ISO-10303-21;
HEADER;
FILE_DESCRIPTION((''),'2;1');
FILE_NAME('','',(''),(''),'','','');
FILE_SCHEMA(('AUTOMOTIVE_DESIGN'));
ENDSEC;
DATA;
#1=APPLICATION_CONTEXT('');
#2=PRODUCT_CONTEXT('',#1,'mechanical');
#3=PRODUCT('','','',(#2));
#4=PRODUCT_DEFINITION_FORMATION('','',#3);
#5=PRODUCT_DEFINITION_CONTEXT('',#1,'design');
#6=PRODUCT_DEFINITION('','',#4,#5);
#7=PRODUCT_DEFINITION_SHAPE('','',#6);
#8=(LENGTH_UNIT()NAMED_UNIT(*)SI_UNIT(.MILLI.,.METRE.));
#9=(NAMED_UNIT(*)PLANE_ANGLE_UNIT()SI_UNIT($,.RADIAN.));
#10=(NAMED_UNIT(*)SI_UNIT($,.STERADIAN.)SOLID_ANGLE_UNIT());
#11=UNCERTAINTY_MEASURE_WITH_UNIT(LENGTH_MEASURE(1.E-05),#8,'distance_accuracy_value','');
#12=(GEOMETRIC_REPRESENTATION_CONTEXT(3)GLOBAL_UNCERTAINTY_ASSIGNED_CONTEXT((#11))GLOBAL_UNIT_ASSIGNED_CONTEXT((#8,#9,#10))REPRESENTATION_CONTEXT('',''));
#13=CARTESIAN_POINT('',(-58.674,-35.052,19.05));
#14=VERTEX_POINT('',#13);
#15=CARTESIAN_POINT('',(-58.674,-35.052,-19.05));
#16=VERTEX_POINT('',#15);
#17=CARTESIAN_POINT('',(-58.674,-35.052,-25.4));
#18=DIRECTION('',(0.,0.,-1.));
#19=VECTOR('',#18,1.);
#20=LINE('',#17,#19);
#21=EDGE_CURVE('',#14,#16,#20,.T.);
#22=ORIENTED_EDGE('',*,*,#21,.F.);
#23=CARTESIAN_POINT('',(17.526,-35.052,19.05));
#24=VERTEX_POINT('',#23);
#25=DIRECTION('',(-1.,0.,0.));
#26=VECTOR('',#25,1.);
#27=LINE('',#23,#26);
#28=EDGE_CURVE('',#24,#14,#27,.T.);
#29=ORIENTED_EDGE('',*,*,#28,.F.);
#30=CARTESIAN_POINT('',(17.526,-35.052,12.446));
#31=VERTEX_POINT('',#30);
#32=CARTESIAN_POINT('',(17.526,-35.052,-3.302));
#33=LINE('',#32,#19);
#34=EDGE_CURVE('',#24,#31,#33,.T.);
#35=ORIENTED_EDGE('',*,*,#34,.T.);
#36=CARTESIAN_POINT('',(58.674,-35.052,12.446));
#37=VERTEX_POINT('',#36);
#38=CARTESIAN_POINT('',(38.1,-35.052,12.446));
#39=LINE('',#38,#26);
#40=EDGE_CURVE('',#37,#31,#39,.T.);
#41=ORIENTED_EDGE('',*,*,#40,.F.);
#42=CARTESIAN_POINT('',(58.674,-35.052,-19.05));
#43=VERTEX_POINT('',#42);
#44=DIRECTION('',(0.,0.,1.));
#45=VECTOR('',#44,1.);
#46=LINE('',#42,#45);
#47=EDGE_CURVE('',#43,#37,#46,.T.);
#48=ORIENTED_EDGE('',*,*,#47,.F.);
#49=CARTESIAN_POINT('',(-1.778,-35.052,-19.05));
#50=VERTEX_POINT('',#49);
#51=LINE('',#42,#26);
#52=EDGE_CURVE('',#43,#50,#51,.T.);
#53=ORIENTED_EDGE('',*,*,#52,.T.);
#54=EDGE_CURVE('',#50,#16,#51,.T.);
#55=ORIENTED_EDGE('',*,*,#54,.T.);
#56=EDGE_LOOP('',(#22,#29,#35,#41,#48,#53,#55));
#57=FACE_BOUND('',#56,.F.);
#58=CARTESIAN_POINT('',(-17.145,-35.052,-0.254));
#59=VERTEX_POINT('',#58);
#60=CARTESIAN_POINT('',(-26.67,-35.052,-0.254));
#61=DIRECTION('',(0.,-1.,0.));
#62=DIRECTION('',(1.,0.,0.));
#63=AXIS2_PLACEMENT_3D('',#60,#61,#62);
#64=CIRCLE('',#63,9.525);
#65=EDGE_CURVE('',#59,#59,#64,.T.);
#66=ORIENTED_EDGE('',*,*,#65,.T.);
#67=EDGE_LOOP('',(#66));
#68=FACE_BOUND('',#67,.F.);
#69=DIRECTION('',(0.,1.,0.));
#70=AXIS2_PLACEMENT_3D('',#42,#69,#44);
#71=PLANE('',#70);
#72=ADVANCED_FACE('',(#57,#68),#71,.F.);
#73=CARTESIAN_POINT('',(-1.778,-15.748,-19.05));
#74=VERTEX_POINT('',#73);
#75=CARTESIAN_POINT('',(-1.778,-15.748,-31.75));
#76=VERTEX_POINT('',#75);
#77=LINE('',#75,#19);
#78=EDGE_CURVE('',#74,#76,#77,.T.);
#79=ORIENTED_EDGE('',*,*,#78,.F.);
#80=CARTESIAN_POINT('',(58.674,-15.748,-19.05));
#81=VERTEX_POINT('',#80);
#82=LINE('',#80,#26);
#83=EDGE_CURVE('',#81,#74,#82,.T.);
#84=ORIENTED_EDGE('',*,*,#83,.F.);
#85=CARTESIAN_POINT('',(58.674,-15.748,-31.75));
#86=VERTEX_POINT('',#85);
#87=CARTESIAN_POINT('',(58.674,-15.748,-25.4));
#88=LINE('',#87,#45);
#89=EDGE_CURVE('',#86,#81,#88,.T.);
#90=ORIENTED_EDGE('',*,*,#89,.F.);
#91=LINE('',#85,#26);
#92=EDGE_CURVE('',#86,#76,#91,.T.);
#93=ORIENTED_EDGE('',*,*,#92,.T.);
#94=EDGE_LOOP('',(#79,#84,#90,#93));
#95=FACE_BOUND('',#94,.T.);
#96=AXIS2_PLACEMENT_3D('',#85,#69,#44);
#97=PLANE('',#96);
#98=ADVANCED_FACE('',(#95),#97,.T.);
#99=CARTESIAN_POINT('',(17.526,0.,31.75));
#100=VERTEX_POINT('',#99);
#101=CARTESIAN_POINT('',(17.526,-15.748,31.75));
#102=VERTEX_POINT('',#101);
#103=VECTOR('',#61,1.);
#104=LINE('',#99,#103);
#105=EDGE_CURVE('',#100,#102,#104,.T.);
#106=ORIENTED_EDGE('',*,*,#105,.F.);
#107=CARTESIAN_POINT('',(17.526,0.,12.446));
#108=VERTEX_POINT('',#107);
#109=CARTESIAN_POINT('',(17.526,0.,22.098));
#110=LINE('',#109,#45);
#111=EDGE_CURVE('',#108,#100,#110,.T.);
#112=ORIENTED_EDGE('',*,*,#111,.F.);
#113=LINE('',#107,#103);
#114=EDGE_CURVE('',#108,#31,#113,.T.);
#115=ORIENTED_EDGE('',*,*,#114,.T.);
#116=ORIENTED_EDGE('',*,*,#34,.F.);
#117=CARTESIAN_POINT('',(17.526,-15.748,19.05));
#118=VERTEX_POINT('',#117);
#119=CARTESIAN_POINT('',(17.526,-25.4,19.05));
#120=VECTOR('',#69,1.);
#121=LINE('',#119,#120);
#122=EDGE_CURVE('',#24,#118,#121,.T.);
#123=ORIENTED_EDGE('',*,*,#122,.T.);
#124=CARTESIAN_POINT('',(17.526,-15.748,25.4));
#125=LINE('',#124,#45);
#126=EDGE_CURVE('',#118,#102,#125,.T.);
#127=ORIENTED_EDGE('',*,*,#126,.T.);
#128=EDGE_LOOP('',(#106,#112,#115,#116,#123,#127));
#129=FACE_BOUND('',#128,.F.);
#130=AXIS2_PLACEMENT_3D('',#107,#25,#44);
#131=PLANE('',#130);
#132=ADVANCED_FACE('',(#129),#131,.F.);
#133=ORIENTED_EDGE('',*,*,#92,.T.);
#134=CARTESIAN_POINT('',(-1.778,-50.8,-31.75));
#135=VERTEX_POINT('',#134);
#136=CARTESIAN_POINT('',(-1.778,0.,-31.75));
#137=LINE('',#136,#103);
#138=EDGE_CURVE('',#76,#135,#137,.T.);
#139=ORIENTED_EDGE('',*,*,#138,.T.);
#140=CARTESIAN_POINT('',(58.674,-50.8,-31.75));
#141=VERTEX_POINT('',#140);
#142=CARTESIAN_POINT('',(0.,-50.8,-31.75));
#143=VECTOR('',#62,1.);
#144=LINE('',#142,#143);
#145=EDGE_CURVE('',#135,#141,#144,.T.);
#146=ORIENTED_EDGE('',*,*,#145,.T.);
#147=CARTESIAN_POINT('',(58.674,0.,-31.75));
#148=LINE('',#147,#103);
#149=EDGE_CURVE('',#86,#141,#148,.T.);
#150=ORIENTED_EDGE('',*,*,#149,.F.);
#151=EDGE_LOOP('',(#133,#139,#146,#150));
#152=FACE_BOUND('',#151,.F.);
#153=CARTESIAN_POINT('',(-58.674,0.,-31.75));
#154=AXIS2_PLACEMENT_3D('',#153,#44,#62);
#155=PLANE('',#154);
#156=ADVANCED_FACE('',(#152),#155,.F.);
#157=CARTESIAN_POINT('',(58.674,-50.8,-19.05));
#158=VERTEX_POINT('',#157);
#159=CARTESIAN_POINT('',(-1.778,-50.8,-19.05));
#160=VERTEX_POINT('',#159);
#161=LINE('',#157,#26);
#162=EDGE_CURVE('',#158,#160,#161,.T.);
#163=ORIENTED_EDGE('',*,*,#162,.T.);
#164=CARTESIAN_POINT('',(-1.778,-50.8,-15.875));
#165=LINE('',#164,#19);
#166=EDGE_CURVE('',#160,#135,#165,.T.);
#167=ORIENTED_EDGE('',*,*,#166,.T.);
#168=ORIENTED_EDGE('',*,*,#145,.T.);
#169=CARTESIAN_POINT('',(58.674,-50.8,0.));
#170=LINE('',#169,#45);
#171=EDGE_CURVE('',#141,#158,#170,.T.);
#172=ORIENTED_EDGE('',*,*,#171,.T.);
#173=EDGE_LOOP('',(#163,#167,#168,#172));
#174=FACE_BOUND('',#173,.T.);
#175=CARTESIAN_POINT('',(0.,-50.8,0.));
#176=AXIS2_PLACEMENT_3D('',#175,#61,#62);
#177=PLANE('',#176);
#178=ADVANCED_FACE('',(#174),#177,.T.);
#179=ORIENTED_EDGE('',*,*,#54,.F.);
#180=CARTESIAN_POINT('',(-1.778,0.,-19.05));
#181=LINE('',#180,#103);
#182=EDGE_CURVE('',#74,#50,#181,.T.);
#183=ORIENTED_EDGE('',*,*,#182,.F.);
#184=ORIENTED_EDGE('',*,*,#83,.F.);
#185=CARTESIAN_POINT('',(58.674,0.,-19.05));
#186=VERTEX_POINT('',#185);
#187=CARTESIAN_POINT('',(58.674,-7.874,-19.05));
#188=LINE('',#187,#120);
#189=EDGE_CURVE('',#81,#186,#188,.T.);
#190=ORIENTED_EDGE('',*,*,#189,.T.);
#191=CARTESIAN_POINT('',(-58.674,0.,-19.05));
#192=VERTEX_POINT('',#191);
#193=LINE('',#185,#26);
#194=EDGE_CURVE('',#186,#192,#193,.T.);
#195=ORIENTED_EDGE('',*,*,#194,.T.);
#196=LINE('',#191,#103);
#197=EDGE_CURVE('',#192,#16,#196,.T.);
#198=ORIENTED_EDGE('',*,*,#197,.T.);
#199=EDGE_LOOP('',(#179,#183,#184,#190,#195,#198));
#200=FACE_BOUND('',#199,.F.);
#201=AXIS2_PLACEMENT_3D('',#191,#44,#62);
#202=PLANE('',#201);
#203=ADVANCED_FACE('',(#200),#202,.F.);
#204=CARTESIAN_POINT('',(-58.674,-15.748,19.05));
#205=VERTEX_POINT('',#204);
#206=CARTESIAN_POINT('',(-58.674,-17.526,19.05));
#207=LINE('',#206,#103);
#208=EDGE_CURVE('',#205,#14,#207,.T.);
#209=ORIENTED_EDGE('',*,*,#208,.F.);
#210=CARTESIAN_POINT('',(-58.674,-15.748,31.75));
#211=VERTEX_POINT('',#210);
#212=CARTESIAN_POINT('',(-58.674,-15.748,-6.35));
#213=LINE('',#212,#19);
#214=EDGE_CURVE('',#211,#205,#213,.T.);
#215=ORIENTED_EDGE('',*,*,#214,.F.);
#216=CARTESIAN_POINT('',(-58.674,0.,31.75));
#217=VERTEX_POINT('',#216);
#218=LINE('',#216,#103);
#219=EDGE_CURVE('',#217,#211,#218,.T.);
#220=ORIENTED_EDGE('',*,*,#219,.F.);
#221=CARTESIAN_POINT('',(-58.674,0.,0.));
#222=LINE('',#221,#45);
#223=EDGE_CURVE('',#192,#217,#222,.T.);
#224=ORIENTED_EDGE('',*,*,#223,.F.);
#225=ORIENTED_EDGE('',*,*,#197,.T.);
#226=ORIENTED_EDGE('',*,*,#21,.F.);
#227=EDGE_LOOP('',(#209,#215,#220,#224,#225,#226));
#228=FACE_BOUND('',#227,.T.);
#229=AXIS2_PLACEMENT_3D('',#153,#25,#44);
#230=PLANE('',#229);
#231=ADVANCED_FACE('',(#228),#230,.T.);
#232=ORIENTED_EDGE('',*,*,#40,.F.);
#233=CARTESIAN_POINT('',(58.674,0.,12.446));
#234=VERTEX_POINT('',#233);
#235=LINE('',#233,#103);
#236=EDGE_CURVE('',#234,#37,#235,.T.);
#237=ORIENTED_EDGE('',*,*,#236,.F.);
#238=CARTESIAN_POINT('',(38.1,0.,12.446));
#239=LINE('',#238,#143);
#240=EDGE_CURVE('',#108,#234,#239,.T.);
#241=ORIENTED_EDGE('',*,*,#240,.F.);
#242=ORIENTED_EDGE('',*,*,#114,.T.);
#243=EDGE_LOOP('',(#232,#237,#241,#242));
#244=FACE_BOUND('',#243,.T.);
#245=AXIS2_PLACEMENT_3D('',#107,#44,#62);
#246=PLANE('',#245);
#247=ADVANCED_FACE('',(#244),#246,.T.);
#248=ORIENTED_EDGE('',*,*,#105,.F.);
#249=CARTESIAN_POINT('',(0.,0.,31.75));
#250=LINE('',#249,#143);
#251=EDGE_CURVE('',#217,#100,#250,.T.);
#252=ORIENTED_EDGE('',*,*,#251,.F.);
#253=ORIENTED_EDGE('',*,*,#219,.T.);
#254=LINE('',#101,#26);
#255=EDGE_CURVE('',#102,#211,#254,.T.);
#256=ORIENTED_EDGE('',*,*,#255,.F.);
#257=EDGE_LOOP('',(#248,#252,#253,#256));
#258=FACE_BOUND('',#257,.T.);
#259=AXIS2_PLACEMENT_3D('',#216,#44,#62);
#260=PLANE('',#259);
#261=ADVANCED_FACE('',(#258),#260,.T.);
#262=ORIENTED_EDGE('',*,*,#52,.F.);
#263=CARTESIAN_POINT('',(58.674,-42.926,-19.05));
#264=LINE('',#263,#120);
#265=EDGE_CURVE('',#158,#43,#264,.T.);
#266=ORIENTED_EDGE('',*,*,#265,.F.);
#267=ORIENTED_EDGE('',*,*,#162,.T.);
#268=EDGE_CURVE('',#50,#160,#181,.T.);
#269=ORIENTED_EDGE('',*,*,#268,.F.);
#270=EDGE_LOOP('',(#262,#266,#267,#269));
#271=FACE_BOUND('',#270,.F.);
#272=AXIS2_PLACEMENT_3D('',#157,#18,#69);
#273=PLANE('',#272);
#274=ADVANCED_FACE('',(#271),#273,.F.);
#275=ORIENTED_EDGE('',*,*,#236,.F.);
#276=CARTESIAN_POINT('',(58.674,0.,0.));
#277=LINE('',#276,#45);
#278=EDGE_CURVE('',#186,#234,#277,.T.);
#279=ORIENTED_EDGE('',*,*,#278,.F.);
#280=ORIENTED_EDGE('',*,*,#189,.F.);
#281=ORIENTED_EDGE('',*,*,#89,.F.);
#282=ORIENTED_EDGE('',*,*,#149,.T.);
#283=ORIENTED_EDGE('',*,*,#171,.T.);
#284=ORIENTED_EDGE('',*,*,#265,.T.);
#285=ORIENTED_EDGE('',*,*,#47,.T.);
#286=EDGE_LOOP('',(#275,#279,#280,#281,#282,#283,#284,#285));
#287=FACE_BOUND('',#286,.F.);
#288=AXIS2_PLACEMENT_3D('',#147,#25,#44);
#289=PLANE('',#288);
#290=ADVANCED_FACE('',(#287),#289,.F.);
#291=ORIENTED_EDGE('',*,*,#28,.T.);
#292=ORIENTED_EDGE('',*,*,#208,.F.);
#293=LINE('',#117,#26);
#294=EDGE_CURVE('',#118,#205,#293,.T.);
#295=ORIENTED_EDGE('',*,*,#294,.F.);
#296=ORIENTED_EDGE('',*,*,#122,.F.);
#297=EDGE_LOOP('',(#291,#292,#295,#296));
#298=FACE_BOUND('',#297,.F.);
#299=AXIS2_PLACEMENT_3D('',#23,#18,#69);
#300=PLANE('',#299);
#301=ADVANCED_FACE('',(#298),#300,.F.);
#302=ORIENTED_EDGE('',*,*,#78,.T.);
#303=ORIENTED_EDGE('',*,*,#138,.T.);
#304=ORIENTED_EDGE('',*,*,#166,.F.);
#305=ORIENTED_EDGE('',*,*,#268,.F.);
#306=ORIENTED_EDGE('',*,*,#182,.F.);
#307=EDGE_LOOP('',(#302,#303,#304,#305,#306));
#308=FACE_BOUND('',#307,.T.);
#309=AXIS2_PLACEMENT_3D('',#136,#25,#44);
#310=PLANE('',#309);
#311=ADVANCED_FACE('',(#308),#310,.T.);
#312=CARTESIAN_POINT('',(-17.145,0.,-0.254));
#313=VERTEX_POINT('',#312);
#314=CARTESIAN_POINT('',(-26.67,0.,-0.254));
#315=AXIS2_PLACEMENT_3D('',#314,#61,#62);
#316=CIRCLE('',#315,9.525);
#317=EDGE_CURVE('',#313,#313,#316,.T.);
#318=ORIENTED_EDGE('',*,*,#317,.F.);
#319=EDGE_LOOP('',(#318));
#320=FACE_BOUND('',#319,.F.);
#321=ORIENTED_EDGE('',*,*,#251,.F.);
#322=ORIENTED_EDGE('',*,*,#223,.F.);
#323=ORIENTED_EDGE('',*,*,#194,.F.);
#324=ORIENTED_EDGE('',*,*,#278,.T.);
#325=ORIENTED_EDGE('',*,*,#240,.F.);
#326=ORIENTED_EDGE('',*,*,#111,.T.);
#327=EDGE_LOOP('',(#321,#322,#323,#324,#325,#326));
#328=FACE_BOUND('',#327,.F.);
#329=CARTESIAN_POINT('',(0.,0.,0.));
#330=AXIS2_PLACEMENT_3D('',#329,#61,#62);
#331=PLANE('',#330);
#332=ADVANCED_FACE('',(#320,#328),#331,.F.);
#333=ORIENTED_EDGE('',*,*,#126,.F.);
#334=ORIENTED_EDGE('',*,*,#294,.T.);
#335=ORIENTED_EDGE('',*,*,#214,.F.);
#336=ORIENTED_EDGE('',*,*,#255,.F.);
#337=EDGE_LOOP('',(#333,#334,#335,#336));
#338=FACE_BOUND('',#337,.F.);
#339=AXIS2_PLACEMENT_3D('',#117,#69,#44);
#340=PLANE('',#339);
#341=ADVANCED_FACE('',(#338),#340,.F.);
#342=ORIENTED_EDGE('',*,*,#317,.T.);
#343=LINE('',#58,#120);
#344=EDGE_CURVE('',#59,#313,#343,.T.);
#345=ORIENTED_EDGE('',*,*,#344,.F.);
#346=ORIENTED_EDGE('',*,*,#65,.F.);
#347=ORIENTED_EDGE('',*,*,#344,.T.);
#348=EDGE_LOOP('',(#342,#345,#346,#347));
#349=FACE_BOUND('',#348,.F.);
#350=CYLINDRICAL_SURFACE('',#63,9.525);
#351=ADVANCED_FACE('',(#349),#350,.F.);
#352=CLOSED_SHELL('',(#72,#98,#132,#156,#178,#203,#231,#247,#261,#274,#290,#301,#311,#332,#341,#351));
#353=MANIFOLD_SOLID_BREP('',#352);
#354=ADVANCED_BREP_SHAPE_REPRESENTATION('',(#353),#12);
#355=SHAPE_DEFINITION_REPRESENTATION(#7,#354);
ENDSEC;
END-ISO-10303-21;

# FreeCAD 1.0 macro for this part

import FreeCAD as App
import Part
import Sketcher
from FreeCAD import Vector
Q = App.Units.Quantity

doc = App.newDocument("Part")
params = doc.addObject("Spreadsheet::Sheet", "Params")
for row, (alias, value) in enumerate([
    ("sketch1_height", "2.5 in"),
    ("sketch1_width", "4.62 in"),
    ("pad1_length", "2 in"),
    ("sketch2_width", "1.62 in"),
    ("sketch2_height", "0.76 in"),
    ("sketch3_height", "0.5 in"),
    ("sketch3_width", "2.24 in"),
    ("sketch4_height", "0.5 in"),
    ("sketch4_width", "0.62 in"),
    ("sketch5_height", "2 in"),
    ("sketch5_width", "0.62 in"),
    ("sketch6_height", "0.5 in"),
    ("sketch6_width", "0.76 in"),
    ("sketch7_diameter", "0.75 in"),
], start=1):
    params.set(f"A{row}", alias)
    params.set(f"B{row}", "=" + value)
    params.setAlias(f"B{row}", alias)

body = doc.addObject("PartDesign::Body", "Body")

# Sketch on XZ plane
sketch1 = body.newObject("Sketcher::SketchObject", "Sketch")
sketch1.AttachmentSupport = (doc.getObject("XZ_Plane"), [""])
sketch1.MapMode = "FlatFace"
sketch1.addGeometry([
    Part.LineSegment(Vector(-58.674, 31.75, 0), Vector(-58.674, -31.75, 0)),
    Part.LineSegment(Vector(-58.674, -31.75, 0), Vector(58.674, -31.75, 0)),
    Part.LineSegment(Vector(58.674, -31.75, 0), Vector(58.674, 31.75, 0)),
    Part.LineSegment(Vector(58.674, 31.75, 0), Vector(-58.674, 31.75, 0)),
], False)
sketch1.addConstraint([
    Sketcher.Constraint("Coincident", 0, 2, 1, 1),
    Sketcher.Constraint("Coincident", 1, 2, 2, 1),
    Sketcher.Constraint("Coincident", 2, 2, 3, 1),
    Sketcher.Constraint("Coincident", 3, 2, 0, 1),
    Sketcher.Constraint("Vertical", 0),
    Sketcher.Constraint("Horizontal", 1),
    Sketcher.Constraint("Vertical", 2),
    Sketcher.Constraint("Horizontal", 3),
    Sketcher.Constraint("Symmetric", 0, 2, 2, 2, -1, 1),
    Sketcher.Constraint("DistanceY", 0, 2, 0, 1, Q("2.5 in")),
    Sketcher.Constraint("DistanceX", 1, 1, 1, 2, Q("4.62 in")),
])
sketch1.setExpression("Constraints[9]", "Params.sketch1_height")
sketch1.setExpression("Constraints[10]", "Params.sketch1_width")
pad1 = body.newObject("PartDesign::Pad", "Pad")
pad1.Profile = sketch1
pad1.setExpression("Length", "Params.pad1_length")

# Sketch on XZ plane
sketch2 = body.newObject("Sketcher::SketchObject", "Sketch001")
sketch2.AttachmentSupport = (doc.getObject("XZ_Plane"), [""])
sketch2.MapMode = "FlatFace"
sketch2.addGeometry([
    Part.LineSegment(Vector(17.526, 31.75, 0), Vector(17.526, 12.446, 0)),
    Part.LineSegment(Vector(17.526, 12.446, 0), Vector(58.674, 12.446, 0)),
    Part.LineSegment(Vector(58.674, 12.446, 0), Vector(58.674, 31.75, 0)),
    Part.LineSegment(Vector(58.674, 31.75, 0), Vector(17.526, 31.75, 0)),
], False)
sketch2.addConstraint([
    Sketcher.Constraint("Coincident", 0, 2, 1, 1),
    Sketcher.Constraint("Coincident", 1, 2, 2, 1),
    Sketcher.Constraint("Coincident", 2, 2, 3, 1),
    Sketcher.Constraint("Coincident", 3, 2, 0, 1),
    Sketcher.Constraint("Vertical", 0),
    Sketcher.Constraint("Horizontal", 1),
    Sketcher.Constraint("Vertical", 2),
    Sketcher.Constraint("Horizontal", 3),
    Sketcher.Constraint("DistanceX", 1, 1, 1, 2, Q("1.62 in")),
    Sketcher.Constraint("DistanceY", 0, 2, 0, 1, Q("0.76 in")),
    Sketcher.Constraint("DistanceX", -1, 1, 0, 2, Q("0.69 in")),
    Sketcher.Constraint("DistanceY", -1, 1, 0, 2, Q("0.49 in")),
])
sketch2.setExpression("Constraints[8]", "Params.sketch2_width")
sketch2.setExpression("Constraints[9]", "Params.sketch2_height")
pocket1 = body.newObject("PartDesign::Pocket", "Pocket")
pocket1.Profile = sketch2
pocket1.Type = "ThroughAll"
pocket1.Reversed = True

# Sketch on XZ plane
sketch3 = body.newObject("Sketcher::SketchObject", "Sketch002")
sketch3.AttachmentSupport = (doc.getObject("XZ_Plane"), [""])
sketch3.MapMode = "FlatFace"
sketch3.addGeometry([
    Part.LineSegment(Vector(-58.674, -19.05, 0), Vector(-58.674, -31.75, 0)),
    Part.LineSegment(Vector(-58.674, -31.75, 0), Vector(-1.778, -31.75, 0)),
    Part.LineSegment(Vector(-1.778, -31.75, 0), Vector(-1.778, -19.05, 0)),
    Part.LineSegment(Vector(-1.778, -19.05, 0), Vector(-58.674, -19.05, 0)),
], False)
sketch3.addConstraint([
    Sketcher.Constraint("Coincident", 0, 2, 1, 1),
    Sketcher.Constraint("Coincident", 1, 2, 2, 1),
    Sketcher.Constraint("Coincident", 2, 2, 3, 1),
    Sketcher.Constraint("Coincident", 3, 2, 0, 1),
    Sketcher.Constraint("Vertical", 0),
    Sketcher.Constraint("Horizontal", 1),
    Sketcher.Constraint("Vertical", 2),
    Sketcher.Constraint("Horizontal", 3),
    Sketcher.Constraint("DistanceY", 0, 2, 0, 1, Q("0.5 in")),
    Sketcher.Constraint("DistanceX", 1, 1, 1, 2, Q("2.24 in")),
    Sketcher.Constraint("DistanceX", 0, 2, -1, 1, Q("2.31 in")),
    Sketcher.Constraint("DistanceY", 0, 2, -1, 1, Q("1.25 in")),
])
sketch3.setExpression("Constraints[8]", "Params.sketch3_height")
sketch3.setExpression("Constraints[9]", "Params.sketch3_width")
pocket2 = body.newObject("PartDesign::Pocket", "Pocket001")
pocket2.Profile = sketch3
pocket2.Type = "ThroughAll"
pocket2.Reversed = True

# Sketch on YZ plane
sketch4 = body.newObject("Sketcher::SketchObject", "Sketch003")
sketch4.AttachmentSupport = (doc.getObject("YZ_Plane"), [""])
sketch4.MapMode = "FlatFace"
sketch4.AttachmentOffset = App.Placement(Vector(0, 0, 2.31 * 25.4), App.Rotation())
sketch4.addGeometry([
    Part.LineSegment(Vector(-15.748, -19.05, 0), Vector(-15.748, -31.75, 0)),
    Part.LineSegment(Vector(-15.748, -31.75, 0), Vector(0, -31.75, 0)),
    Part.LineSegment(Vector(0, -31.75, 0), Vector(0, -19.05, 0)),
    Part.LineSegment(Vector(0, -19.05, 0), Vector(-15.748, -19.05, 0)),
], False)
sketch4.addConstraint([
    Sketcher.Constraint("Coincident", 0, 2, 1, 1),
    Sketcher.Constraint("Coincident", 1, 2, 2, 1),
    Sketcher.Constraint("Coincident", 2, 2, 3, 1),
    Sketcher.Constraint("Coincident", 3, 2, 0, 1),
    Sketcher.Constraint("Vertical", 0),
    Sketcher.Constraint("Horizontal", 1),
    Sketcher.Constraint("Vertical", 2),
    Sketcher.Constraint("Horizontal", 3),
    Sketcher.Constraint("PointOnObject", 1, 2, -2),
    Sketcher.Constraint("DistanceY", 0, 2, 0, 1, Q("0.5 in")),
    Sketcher.Constraint("DistanceX", 1, 1, 1, 2, Q("0.62 in")),
    Sketcher.Constraint("DistanceY", 0, 2, -1, 1, Q("1.25 in")),
])
sketch4.setExpression("Constraints[9]", "Params.sketch4_height")
sketch4.setExpression("Constraints[10]", "Params.sketch4_width")
pocket3 = body.newObject("PartDesign::Pocket", "Pocket002")
pocket3.Profile = sketch4
pocket3.Type = "ThroughAll"

# Sketch on YZ plane
sketch5 = body.newObject("Sketcher::SketchObject", "Sketch004")
sketch5.AttachmentSupport = (doc.getObject("YZ_Plane"), [""])
sketch5.MapMode = "FlatFace"
sketch5.AttachmentOffset = App.Placement(Vector(0, 0, 2.31 * 25.4), App.Rotation())
sketch5.addGeometry([
    Part.LineSegment(Vector(-50.8, 31.75, 0), Vector(-50.8, -19.05, 0)),
    Part.LineSegment(Vector(-50.8, -19.05, 0), Vector(-35.052, -19.05, 0)),
    Part.LineSegment(Vector(-35.052, -19.05, 0), Vector(-35.052, 31.75, 0)),
    Part.LineSegment(Vector(-35.052, 31.75, 0), Vector(-50.8, 31.75, 0)),
], False)
sketch5.addConstraint([
    Sketcher.Constraint("Coincident", 0, 2, 1, 1),
    Sketcher.Constraint("Coincident", 1, 2, 2, 1),
    Sketcher.Constraint("Coincident", 2, 2, 3, 1),
    Sketcher.Constraint("Coincident", 3, 2, 0, 1),
    Sketcher.Constraint("Vertical", 0),
    Sketcher.Constraint("Horizontal", 1),
    Sketcher.Constraint("Vertical", 2),
    Sketcher.Constraint("Horizontal", 3),
    Sketcher.Constraint("DistanceY", 0, 2, 0, 1, Q("2 in")),
    Sketcher.Constraint("DistanceX", 0, 2, -1, 1, Q("2 in")),
    Sketcher.Constraint("DistanceX", 1, 1, 1, 2, Q("0.62 in")),
    Sketcher.Constraint("DistanceY", 0, 2, -1, 1, Q("0.75 in")),
])
sketch5.setExpression("Constraints[8]", "Params.sketch5_height")
sketch5.setExpression("Constraints[10]", "Params.sketch5_width")
pocket4 = body.newObject("PartDesign::Pocket", "Pocket003")
pocket4.Profile = sketch5
pocket4.Type = "ThroughAll"

# Sketch on YZ plane
sketch6 = body.newObject("Sketcher::SketchObject", "Sketch005")
sketch6.AttachmentSupport = (doc.getObject("YZ_Plane"), [""])
sketch6.MapMode = "FlatFace"
sketch6.AttachmentOffset = App.Placement(Vector(0, 0, 0.69 * 25.4), App.Rotation())
sketch6.addGeometry([
    Part.LineSegment(Vector(-35.052, 31.75, 0), Vector(-35.052, 19.05, 0)),
    Part.LineSegment(Vector(-35.052, 19.05, 0), Vector(-15.748, 19.05, 0)),
    Part.LineSegment(Vector(-15.748, 19.05, 0), Vector(-15.748, 31.75, 0)),
    Part.LineSegment(Vector(-15.748, 31.75, 0), Vector(-35.052, 31.75, 0)),
], False)
sketch6.addConstraint([
    Sketcher.Constraint("Coincident", 0, 2, 1, 1),
    Sketcher.Constraint("Coincident", 1, 2, 2, 1),
    Sketcher.Constraint("Coincident", 2, 2, 3, 1),
    Sketcher.Constraint("Coincident", 3, 2, 0, 1),
    Sketcher.Constraint("Vertical", 0),
    Sketcher.Constraint("Horizontal", 1),
    Sketcher.Constraint("Vertical", 2),
    Sketcher.Constraint("Horizontal", 3),
    Sketcher.Constraint("DistanceY", 0, 2, 0, 1, Q("0.5 in")),
    Sketcher.Constraint("DistanceX", 1, 1, 1, 2, Q("0.76 in")),
    Sketcher.Constraint("DistanceX", 0, 2, -1, 1, Q("1.38 in")),
    Sketcher.Constraint("DistanceY", -1, 1, 0, 2, Q("0.75 in")),
])
sketch6.setExpression("Constraints[8]", "Params.sketch6_height")
sketch6.setExpression("Constraints[9]", "Params.sketch6_width")
pocket5 = body.newObject("PartDesign::Pocket", "Pocket004")
pocket5.Profile = sketch6
pocket5.Type = "ThroughAll"

# Sketch on XZ plane
sketch7 = body.newObject("Sketcher::SketchObject", "Sketch006")
sketch7.AttachmentSupport = (doc.getObject("XZ_Plane"), [""])
sketch7.MapMode = "FlatFace"
sketch7.AttachmentOffset = App.Placement(Vector(0, 0, 1.38 * 25.4), App.Rotation())
sketch7.addGeometry(Part.Circle(Vector(-26.67, -0.254, 0), Vector(0, 0, 1), 9.525), False)
sketch7.addConstraint([
    Sketcher.Constraint("Diameter", 0, Q("0.75 in")),
    Sketcher.Constraint("DistanceX", 0, 3, -1, 1, Q("1.05 in")),
    Sketcher.Constraint("DistanceY", 0, 3, -1, 1, Q("0.01 in")),
])
sketch7.setExpression("Constraints[0]", "Params.sketch7_diameter")
pocket6 = body.newObject("PartDesign::Pocket", "Pocket005")
pocket6.Profile = sketch7
pocket6.Type = "ThroughAll"

doc.recompute()
